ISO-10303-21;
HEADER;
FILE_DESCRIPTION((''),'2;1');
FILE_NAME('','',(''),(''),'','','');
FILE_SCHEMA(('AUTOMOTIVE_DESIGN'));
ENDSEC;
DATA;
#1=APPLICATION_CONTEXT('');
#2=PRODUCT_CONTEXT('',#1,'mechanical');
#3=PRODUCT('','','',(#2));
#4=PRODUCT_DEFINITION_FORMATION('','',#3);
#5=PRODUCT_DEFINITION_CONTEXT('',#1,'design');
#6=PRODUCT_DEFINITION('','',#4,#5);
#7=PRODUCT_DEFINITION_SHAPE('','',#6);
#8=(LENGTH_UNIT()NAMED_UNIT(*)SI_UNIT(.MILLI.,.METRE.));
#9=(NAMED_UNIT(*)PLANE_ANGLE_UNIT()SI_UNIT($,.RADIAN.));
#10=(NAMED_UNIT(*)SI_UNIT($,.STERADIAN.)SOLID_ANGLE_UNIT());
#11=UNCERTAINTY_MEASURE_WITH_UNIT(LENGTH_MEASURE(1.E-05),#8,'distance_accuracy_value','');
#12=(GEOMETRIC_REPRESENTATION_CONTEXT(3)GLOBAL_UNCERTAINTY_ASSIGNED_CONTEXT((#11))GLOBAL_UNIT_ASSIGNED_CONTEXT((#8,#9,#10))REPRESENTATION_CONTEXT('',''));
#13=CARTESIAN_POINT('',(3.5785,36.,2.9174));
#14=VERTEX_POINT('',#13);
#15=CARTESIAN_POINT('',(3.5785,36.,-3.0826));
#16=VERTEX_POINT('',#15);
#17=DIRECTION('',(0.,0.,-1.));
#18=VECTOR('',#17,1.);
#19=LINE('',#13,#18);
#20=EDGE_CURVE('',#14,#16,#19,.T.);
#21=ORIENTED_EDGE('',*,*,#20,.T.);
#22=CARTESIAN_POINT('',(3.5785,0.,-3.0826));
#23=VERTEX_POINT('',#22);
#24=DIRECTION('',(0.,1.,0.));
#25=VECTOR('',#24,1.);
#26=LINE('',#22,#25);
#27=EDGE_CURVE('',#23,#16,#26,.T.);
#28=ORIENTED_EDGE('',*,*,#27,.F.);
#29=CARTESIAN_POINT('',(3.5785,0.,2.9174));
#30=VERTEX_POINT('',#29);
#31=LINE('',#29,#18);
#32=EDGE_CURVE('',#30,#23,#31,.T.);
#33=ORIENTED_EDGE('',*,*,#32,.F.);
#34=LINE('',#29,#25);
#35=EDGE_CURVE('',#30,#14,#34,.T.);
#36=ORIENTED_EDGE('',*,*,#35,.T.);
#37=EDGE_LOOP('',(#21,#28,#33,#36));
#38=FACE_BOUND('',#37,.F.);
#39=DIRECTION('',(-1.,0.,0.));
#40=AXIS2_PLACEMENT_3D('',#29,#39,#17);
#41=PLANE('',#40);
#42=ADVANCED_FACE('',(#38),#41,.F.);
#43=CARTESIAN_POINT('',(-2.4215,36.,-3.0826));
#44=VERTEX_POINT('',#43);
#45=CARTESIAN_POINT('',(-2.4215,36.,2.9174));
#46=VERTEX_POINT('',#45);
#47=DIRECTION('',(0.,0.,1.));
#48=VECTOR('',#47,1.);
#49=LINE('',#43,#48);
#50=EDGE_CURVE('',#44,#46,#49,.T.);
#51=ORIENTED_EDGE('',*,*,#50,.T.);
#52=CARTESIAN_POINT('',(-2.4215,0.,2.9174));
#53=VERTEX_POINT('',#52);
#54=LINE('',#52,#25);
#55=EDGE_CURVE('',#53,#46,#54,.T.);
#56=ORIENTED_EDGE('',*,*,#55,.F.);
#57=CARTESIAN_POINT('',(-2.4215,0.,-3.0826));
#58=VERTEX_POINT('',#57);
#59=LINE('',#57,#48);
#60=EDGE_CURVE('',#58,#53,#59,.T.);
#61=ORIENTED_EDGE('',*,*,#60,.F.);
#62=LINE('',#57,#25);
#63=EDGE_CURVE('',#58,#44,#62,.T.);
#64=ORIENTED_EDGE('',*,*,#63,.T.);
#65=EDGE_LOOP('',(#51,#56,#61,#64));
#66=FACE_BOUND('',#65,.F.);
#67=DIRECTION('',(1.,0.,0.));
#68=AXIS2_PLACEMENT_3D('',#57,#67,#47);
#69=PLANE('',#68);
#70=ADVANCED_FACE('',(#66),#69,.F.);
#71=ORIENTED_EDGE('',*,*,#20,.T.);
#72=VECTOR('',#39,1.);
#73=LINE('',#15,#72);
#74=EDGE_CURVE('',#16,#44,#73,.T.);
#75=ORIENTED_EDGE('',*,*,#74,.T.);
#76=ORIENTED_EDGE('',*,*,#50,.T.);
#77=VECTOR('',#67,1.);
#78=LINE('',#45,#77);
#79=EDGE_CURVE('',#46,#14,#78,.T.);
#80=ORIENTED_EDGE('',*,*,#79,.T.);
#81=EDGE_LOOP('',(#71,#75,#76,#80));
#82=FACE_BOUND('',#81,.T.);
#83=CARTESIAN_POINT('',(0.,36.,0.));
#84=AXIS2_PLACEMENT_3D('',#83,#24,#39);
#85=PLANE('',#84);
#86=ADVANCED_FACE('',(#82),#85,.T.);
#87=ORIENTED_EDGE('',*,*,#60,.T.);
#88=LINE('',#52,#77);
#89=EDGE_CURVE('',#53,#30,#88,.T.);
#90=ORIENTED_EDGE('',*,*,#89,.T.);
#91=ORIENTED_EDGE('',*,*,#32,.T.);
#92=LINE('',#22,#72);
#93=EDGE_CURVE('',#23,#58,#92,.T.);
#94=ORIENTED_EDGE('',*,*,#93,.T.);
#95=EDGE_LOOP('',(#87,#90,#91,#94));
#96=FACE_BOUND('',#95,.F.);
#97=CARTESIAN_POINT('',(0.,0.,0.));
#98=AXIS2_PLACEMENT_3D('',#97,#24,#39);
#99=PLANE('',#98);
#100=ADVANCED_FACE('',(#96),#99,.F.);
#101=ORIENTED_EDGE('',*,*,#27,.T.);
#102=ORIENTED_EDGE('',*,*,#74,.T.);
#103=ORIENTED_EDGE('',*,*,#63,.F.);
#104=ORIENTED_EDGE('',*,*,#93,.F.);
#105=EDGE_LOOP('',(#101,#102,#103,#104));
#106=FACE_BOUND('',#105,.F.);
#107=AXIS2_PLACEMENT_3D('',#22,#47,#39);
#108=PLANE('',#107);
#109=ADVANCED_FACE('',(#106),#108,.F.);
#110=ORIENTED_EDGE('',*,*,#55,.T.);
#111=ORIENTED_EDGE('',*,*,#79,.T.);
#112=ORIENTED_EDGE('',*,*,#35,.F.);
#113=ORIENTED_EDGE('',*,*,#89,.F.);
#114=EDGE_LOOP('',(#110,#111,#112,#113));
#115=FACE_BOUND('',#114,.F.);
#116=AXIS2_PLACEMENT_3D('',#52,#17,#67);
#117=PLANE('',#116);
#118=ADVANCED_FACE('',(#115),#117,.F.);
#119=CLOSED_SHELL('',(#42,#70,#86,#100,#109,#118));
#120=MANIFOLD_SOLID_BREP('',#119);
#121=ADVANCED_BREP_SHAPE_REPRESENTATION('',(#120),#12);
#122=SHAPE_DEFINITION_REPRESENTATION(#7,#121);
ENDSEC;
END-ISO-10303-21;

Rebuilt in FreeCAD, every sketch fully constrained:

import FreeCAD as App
import Part
import Sketcher

V = App.Vector


def add_polygon(sketch, points):
    """Adds a closed chain of lines whose ends are joined by coincident constraints."""
    first, n = sketch.GeometryCount, len(points)
    for a, b in zip(points, points[1:] + points[:1]):
        sketch.addGeometry(Part.LineSegment(App.Vector(*a, 0), App.Vector(*b, 0)), False)
    for i in range(n):
        sketch.addConstraint(Sketcher.Constraint("Coincident", first + i, 2, first + (i + 1) % n, 1))

doc = App.newDocument("Part")
params = doc.addObject("Spreadsheet::Sheet", "Params")
for row, (alias, value) in enumerate([
    ("sketch1_width", "6 mm"),
    ("pad1_length", "36 mm"),
], start=1):
    params.set(f"A{row}", alias)
    params.set(f"B{row}", "=" + value)
    params.setAlias(f"B{row}", alias)

body = doc.addObject("PartDesign::Body", "Body")

sketch1 = doc.addObject("Sketcher::SketchObject", "Sketch")
body.addObject(sketch1)
sketch1.AttachmentSupport = (doc.XZ_Plane, [""])
sketch1.MapMode = "FlatFace"
add_polygon(sketch1, [(-2, -3), (-2, 3), (4, 3), (4, -3)])
sketch1.addConstraint([
    Sketcher.Constraint("Vertical", 0),
    Sketcher.Constraint("Horizontal", 1),
    Sketcher.Constraint("Vertical", 2),
    Sketcher.Constraint("Horizontal", 3),
    Sketcher.Constraint("Equal", 3, 0),
    Sketcher.Constraint("DistanceX", 1, 1, 1, 2, 6.0),
    Sketcher.Constraint("DistanceX", 0, 2, -1, 1, 2.4215),
    Sketcher.Constraint("DistanceY", -1, 1, 0, 2, 2.9174),
])
sketch1.setExpression("Constraints[9]", "Params.sketch1_width")
pad1 = doc.addObject("PartDesign::Pad", "Pad")
body.addObject(pad1)
pad1.Profile = sketch1
pad1.setExpression("Length", "Params.pad1_length")
pad1.Reversed = True

doc.recompute()
